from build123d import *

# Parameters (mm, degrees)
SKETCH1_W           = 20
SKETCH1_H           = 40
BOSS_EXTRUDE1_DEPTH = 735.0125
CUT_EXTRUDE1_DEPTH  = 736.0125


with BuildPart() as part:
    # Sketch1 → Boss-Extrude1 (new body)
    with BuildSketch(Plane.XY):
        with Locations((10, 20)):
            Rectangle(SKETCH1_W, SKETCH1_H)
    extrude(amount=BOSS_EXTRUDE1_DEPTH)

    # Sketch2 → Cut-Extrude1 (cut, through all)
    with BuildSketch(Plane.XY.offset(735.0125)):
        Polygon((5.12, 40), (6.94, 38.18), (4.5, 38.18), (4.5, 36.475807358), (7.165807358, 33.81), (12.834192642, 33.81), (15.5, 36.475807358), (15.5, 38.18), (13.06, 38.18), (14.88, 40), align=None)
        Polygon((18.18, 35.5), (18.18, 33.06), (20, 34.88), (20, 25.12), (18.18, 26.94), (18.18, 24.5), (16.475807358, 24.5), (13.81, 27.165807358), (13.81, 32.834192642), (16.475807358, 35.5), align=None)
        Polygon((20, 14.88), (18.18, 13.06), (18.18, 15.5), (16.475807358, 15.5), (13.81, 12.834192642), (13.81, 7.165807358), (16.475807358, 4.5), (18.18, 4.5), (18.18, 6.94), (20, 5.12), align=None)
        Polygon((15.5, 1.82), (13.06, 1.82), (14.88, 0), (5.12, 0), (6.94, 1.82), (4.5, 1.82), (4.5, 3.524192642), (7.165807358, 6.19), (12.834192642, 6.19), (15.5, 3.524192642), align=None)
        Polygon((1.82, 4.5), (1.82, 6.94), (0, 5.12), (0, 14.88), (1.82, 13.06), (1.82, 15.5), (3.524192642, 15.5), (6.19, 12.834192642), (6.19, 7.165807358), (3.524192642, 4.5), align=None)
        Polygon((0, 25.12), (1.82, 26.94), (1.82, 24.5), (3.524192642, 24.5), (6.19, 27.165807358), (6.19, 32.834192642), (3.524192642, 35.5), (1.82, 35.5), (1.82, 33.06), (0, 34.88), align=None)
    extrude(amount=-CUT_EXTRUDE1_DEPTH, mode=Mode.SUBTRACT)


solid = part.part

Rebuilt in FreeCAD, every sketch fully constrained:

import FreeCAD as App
import Part
import Sketcher

V = App.Vector

doc = App.newDocument("Part")
body = doc.addObject("PartDesign::Body", "Body")

sketch1 = body.newObject("Sketcher::SketchObject", "Sketch")
sketch1.AttachmentSupport = (doc.getObject("XY_Plane"), [""])
sketch1.MapMode = "FlatFace"
sketch1.addGeometry([
    Part.LineSegment(V(0, 40, 0), V(0, 0, 0)),
    Part.LineSegment(V(0, 0, 0), V(20, 0, 0)),
    Part.LineSegment(V(20, 0, 0), V(20, 40, 0)),
    Part.LineSegment(V(20, 40, 0), V(0, 40, 0)),
], False)
sketch1.addConstraint([
    Sketcher.Constraint("Coincident", 0, 2, 1, 1),
    Sketcher.Constraint("Coincident", 1, 2, 2, 1),
    Sketcher.Constraint("Coincident", 2, 2, 3, 1),
    Sketcher.Constraint("Coincident", 3, 2, 0, 1),
    Sketcher.Constraint("Vertical", 0),
    Sketcher.Constraint("Horizontal", 1),
    Sketcher.Constraint("Vertical", 2),
    Sketcher.Constraint("Horizontal", 3),
    Sketcher.Constraint("Coincident", 0, 2, -1, 1),
    Sketcher.Constraint("DistanceX", 1, 1, 1, 2, 20.0),
    Sketcher.Constraint("DistanceY", 0, 2, 0, 1, 40.0),
])
pad1 = body.newObject("PartDesign::Pad", "Pad")
pad1.Profile = sketch1
pad1.Length = 735.0125

sketch2 = body.newObject("Sketcher::SketchObject", "Sketch001")
sketch2.AttachmentSupport = (doc.getObject("XY_Plane"), [""])
sketch2.MapMode = "FlatFace"
sketch2.AttachmentOffset = App.Placement(V(0, 0, 735.0125), App.Rotation())
sketch2.addGeometry([
    Part.LineSegment(V(5.1, 40, 0), V(6.9, 38.2, 0)),
    Part.LineSegment(V(6.9, 38.2, 0), V(4.5, 38.2, 0)),
    Part.LineSegment(V(4.5, 38.2, 0), V(4.5, 36.5, 0)),
    Part.LineSegment(V(4.5, 36.5, 0), V(7.2, 33.8, 0)),
    Part.LineSegment(V(7.2, 33.8, 0), V(12.8, 33.8, 0)),
    Part.LineSegment(V(12.8, 33.8, 0), V(15.5, 36.5, 0)),
    Part.LineSegment(V(15.5, 36.5, 0), V(15.5, 38.2, 0)),
    Part.LineSegment(V(15.5, 38.2, 0), V(13.1, 38.2, 0)),
    Part.LineSegment(V(13.1, 38.2, 0), V(14.9, 40, 0)),
    Part.LineSegment(V(14.9, 40, 0), V(5.1, 40, 0)),
    Part.LineSegment(V(18.2, 33.1, 0), V(18.2, 35.5, 0)),
    Part.LineSegment(V(18.2, 35.5, 0), V(16.5, 35.5, 0)),
    Part.LineSegment(V(16.5, 35.5, 0), V(13.8, 32.8, 0)),
    Part.LineSegment(V(13.8, 32.8, 0), V(13.8, 27.2, 0)),
    Part.LineSegment(V(13.8, 27.2, 0), V(16.5, 24.5, 0)),
    Part.LineSegment(V(16.5, 24.5, 0), V(18.2, 24.5, 0)),
    Part.LineSegment(V(18.2, 24.5, 0), V(18.2, 26.9, 0)),
    Part.LineSegment(V(18.2, 26.9, 0), V(20, 25.1, 0)),
    Part.LineSegment(V(20, 25.1, 0), V(20, 34.9, 0)),
    Part.LineSegment(V(20, 34.9, 0), V(18.2, 33.1, 0)),
    Part.LineSegment(V(20, 14.9, 0), V(18.2, 13.1, 0)),
    Part.LineSegment(V(18.2, 13.1, 0), V(18.2, 15.5, 0)),
    Part.LineSegment(V(18.2, 15.5, 0), V(16.5, 15.5, 0)),
    Part.LineSegment(V(16.5, 15.5, 0), V(13.8, 12.8, 0)),
    Part.LineSegment(V(13.8, 12.8, 0), V(13.8, 7.2, 0)),
    Part.LineSegment(V(13.8, 7.2, 0), V(16.5, 4.5, 0)),
    Part.LineSegment(V(16.5, 4.5, 0), V(18.2, 4.5, 0)),
    Part.LineSegment(V(18.2, 4.5, 0), V(18.2, 6.9, 0)),
    Part.LineSegment(V(18.2, 6.9, 0), V(20, 5.1, 0)),
    Part.LineSegment(V(20, 5.1, 0), V(20, 14.9, 0)),
    Part.LineSegment(V(13.1, 1.8, 0), V(15.5, 1.8, 0)),
    Part.LineSegment(V(15.5, 1.8, 0), V(15.5, 3.5, 0)),
    Part.LineSegment(V(15.5, 3.5, 0), V(12.8, 6.2, 0)),
    Part.LineSegment(V(12.8, 6.2, 0), V(7.2, 6.2, 0)),
    Part.LineSegment(V(7.2, 6.2, 0), V(4.5, 3.5, 0)),
    Part.LineSegment(V(4.5, 3.5, 0), V(4.5, 1.8, 0)),
    Part.LineSegment(V(4.5, 1.8, 0), V(6.9, 1.8, 0)),
    Part.LineSegment(V(6.9, 1.8, 0), V(5.1, 0, 0)),
    Part.LineSegment(V(5.1, 0, 0), V(14.9, 0, 0)),
    Part.LineSegment(V(14.9, 0, 0), V(13.1, 1.8, 0)),
    Part.LineSegment(V(1.8, 6.9, 0), V(1.8, 4.5, 0)),
    Part.LineSegment(V(1.8, 4.5, 0), V(3.5, 4.5, 0)),
    Part.LineSegment(V(3.5, 4.5, 0), V(6.2, 7.2, 0)),
    Part.LineSegment(V(6.2, 7.2, 0), V(6.2, 12.8, 0)),
    Part.LineSegment(V(6.2, 12.8, 0), V(3.5, 15.5, 0)),
    Part.LineSegment(V(3.5, 15.5, 0), V(1.8, 15.5, 0)),
    Part.LineSegment(V(1.8, 15.5, 0), V(1.8, 13.1, 0)),
    Part.LineSegment(V(1.8, 13.1, 0), V(0, 14.9, 0)),
    Part.LineSegment(V(0, 14.9, 0), V(0, 5.1, 0)),
    Part.LineSegment(V(0, 5.1, 0), V(1.8, 6.9, 0)),
    Part.LineSegment(V(0, 25.1, 0), V(1.8, 26.9, 0)),
    Part.LineSegment(V(1.8, 26.9, 0), V(1.8, 24.5, 0)),
    Part.LineSegment(V(1.8, 24.5, 0), V(3.5, 24.5, 0)),
    Part.LineSegment(V(3.5, 24.5, 0), V(6.2, 27.2, 0)),
    Part.LineSegment(V(6.2, 27.2, 0), V(6.2, 32.8, 0)),
    Part.LineSegment(V(6.2, 32.8, 0), V(3.5, 35.5, 0)),
    Part.LineSegment(V(3.5, 35.5, 0), V(1.8, 35.5, 0)),
    Part.LineSegment(V(1.8, 35.5, 0), V(1.8, 33.1, 0)),
    Part.LineSegment(V(1.8, 33.1, 0), V(0, 34.9, 0)),
    Part.LineSegment(V(0, 34.9, 0), V(0, 25.1, 0)),
], False)
sketch2.addConstraint([
    Sketcher.Constraint("Coincident", 0, 2, 1, 1),
    Sketcher.Constraint("Coincident", 1, 2, 2, 1),
    Sketcher.Constraint("Coincident", 2, 2, 3, 1),
    Sketcher.Constraint("Coincident", 3, 2, 4, 1),
    Sketcher.Constraint("Coincident", 4, 2, 5, 1),
    Sketcher.Constraint("Coincident", 5, 2, 6, 1),
    Sketcher.Constraint("Coincident", 6, 2, 7, 1),
    Sketcher.Constraint("Coincident", 7, 2, 8, 1),
    Sketcher.Constraint("Coincident", 8, 2, 9, 1),
    Sketcher.Constraint("Coincident", 9, 2, 0, 1),
    Sketcher.Constraint("Coincident", 10, 2, 11, 1),
    Sketcher.Constraint("Coincident", 11, 2, 12, 1),
    Sketcher.Constraint("Coincident", 12, 2, 13, 1),
    Sketcher.Constraint("Coincident", 13, 2, 14, 1),
    Sketcher.Constraint("Coincident", 14, 2, 15, 1),
    Sketcher.Constraint("Coincident", 15, 2, 16, 1),
    Sketcher.Constraint("Coincident", 16, 2, 17, 1),
    Sketcher.Constraint("Coincident", 17, 2, 18, 1),
    Sketcher.Constraint("Coincident", 18, 2, 19, 1),
    Sketcher.Constraint("Coincident", 19, 2, 10, 1),
    Sketcher.Constraint("Coincident", 20, 2, 21, 1),
    Sketcher.Constraint("Coincident", 21, 2, 22, 1),
    Sketcher.Constraint("Coincident", 22, 2, 23, 1),
    Sketcher.Constraint("Coincident", 23, 2, 24, 1),
    Sketcher.Constraint("Coincident", 24, 2, 25, 1),
    Sketcher.Constraint("Coincident", 25, 2, 26, 1),
    Sketcher.Constraint("Coincident", 26, 2, 27, 1),
    Sketcher.Constraint("Coincident", 27, 2, 28, 1),
    Sketcher.Constraint("Coincident", 28, 2, 29, 1),
    Sketcher.Constraint("Coincident", 29, 2, 20, 1),
    Sketcher.Constraint("Coincident", 30, 2, 31, 1),
    Sketcher.Constraint("Coincident", 31, 2, 32, 1),
    Sketcher.Constraint("Coincident", 32, 2, 33, 1),
    Sketcher.Constraint("Coincident", 33, 2, 34, 1),
    Sketcher.Constraint("Coincident", 34, 2, 35, 1),
    Sketcher.Constraint("Coincident", 35, 2, 36, 1),
    Sketcher.Constraint("Coincident", 36, 2, 37, 1),
    Sketcher.Constraint("Coincident", 37, 2, 38, 1),
    Sketcher.Constraint("Coincident", 38, 2, 39, 1),
    Sketcher.Constraint("Coincident", 39, 2, 30, 1),
    Sketcher.Constraint("Coincident", 40, 2, 41, 1),
    Sketcher.Constraint("Coincident", 41, 2, 42, 1),
    Sketcher.Constraint("Coincident", 42, 2, 43, 1),
    Sketcher.Constraint("Coincident", 43, 2, 44, 1),
    Sketcher.Constraint("Coincident", 44, 2, 45, 1),
    Sketcher.Constraint("Coincident", 45, 2, 46, 1),
    Sketcher.Constraint("Coincident", 46, 2, 47, 1),
    Sketcher.Constraint("Coincident", 47, 2, 48, 1),
    Sketcher.Constraint("Coincident", 48, 2, 49, 1),
    Sketcher.Constraint("Coincident", 49, 2, 40, 1),
    Sketcher.Constraint("Coincident", 50, 2, 51, 1),
    Sketcher.Constraint("Coincident", 51, 2, 52, 1),
    Sketcher.Constraint("Coincident", 52, 2, 53, 1),
    Sketcher.Constraint("Coincident", 53, 2, 54, 1),
    Sketcher.Constraint("Coincident", 54, 2, 55, 1),
    Sketcher.Constraint("Coincident", 55, 2, 56, 1),
    Sketcher.Constraint("Coincident", 56, 2, 57, 1),
    Sketcher.Constraint("Coincident", 57, 2, 58, 1),
    Sketcher.Constraint("Coincident", 58, 2, 59, 1),
    Sketcher.Constraint("Coincident", 59, 2, 50, 1),
    Sketcher.Constraint("Horizontal", 1),
    Sketcher.Constraint("Vertical", 2),
    Sketcher.Constraint("Horizontal", 4),
    Sketcher.Constraint("Vertical", 6),
    Sketcher.Constraint("Horizontal", 7),
    Sketcher.Constraint("Horizontal", 9),
    Sketcher.Constraint("Vertical", 10),
    Sketcher.Constraint("Horizontal", 11),
    Sketcher.Constraint("Vertical", 13),
    Sketcher.Constraint("Horizontal", 15),
    Sketcher.Constraint("Vertical", 16),
    Sketcher.Constraint("Vertical", 18),
    Sketcher.Constraint("Vertical", 21),
    Sketcher.Constraint("Horizontal", 22),
    Sketcher.Constraint("Vertical", 24),
    Sketcher.Constraint("Horizontal", 26),
    Sketcher.Constraint("Vertical", 27),
    Sketcher.Constraint("Vertical", 29),
    Sketcher.Constraint("Horizontal", 30),
    Sketcher.Constraint("Vertical", 31),
    Sketcher.Constraint("Horizontal", 33),
    Sketcher.Constraint("Vertical", 35),
    Sketcher.Constraint("Horizontal", 36),
    Sketcher.Constraint("Horizontal", 38),
    Sketcher.Constraint("Vertical", 40),
    Sketcher.Constraint("Horizontal", 41),
    Sketcher.Constraint("Vertical", 43),
    Sketcher.Constraint("Horizontal", 45),
    Sketcher.Constraint("Vertical", 46),
    Sketcher.Constraint("Vertical", 48),
    Sketcher.Constraint("Vertical", 51),
    Sketcher.Constraint("Horizontal", 52),
    Sketcher.Constraint("Vertical", 54),
    Sketcher.Constraint("Horizontal", 56),
    Sketcher.Constraint("Vertical", 57),
    Sketcher.Constraint("Vertical", 59),
    Sketcher.Constraint("PointOnObject", 37, 2, -1),
    Sketcher.Constraint("PointOnObject", 47, 2, -2),
    Sketcher.Constraint("PointOnObject", 58, 2, -2),
    Sketcher.Constraint("Parallel", 0, 3),
    Sketcher.Constraint("Perpendicular", 3, 5),
    Sketcher.Constraint("Parallel", 5, 8),
    Sketcher.Constraint("Parallel", 8, 12),
    Sketcher.Constraint("Perpendicular", 12, 14),
    Sketcher.Constraint("Parallel", 14, 17),
    Sketcher.Constraint("Perpendicular", 17, 19),
    Sketcher.Constraint("Parallel", 19, 20),
    Sketcher.Constraint("Parallel", 20, 23),
    Sketcher.Constraint("Perpendicular", 23, 25),
    Sketcher.Constraint("Parallel", 25, 28),
    Sketcher.Constraint("Parallel", 28, 32),
    Sketcher.Constraint("Perpendicular", 32, 34),
    Sketcher.Constraint("Parallel", 34, 37),
    Sketcher.Constraint("Perpendicular", 37, 39),
    Sketcher.Constraint("Perpendicular", 39, 42),
    Sketcher.Constraint("Perpendicular", 42, 44),
    Sketcher.Constraint("Parallel", 44, 47),
    Sketcher.Constraint("Perpendicular", 47, 49),
    Sketcher.Constraint("Parallel", 49, 50),
    Sketcher.Constraint("Parallel", 50, 53),
    Sketcher.Constraint("Perpendicular", 53, 55),
    Sketcher.Constraint("Parallel", 55, 58),
    Sketcher.Constraint("Horizontal", 2, 2, 5, 2),
    Sketcher.Constraint("Horizontal", 1, 2, 6, 2),
    Sketcher.Constraint("Horizontal", 31, 2, 34, 2),
    Sketcher.Constraint("Horizontal", 30, 2, 35, 2),
    Sketcher.Constraint("Horizontal", 26, 2, 40, 2),
    Sketcher.Constraint("Horizontal", 24, 2, 42, 2),
    Sketcher.Constraint("Horizontal", 23, 2, 43, 2),
    Sketcher.Constraint("Horizontal", 22, 2, 44, 2),
    Sketcher.Constraint("Horizontal", 20, 2, 46, 2),
    Sketcher.Constraint("Horizontal", 29, 2, 47, 2),
    Sketcher.Constraint("Horizontal", 28, 2, 48, 2),
    Sketcher.Constraint("Horizontal", 27, 2, 49, 2),
    Sketcher.Constraint("Horizontal", 16, 2, 50, 2),
    Sketcher.Constraint("Horizontal", 15, 2, 51, 2),
    Sketcher.Constraint("Horizontal", 13, 2, 53, 2),
    Sketcher.Constraint("Horizontal", 12, 2, 54, 2),
    Sketcher.Constraint("Horizontal", 11, 2, 55, 2),
    Sketcher.Constraint("Horizontal", 19, 2, 57, 2),
    Sketcher.Constraint("Horizontal", 18, 2, 58, 2),
    Sketcher.Constraint("Horizontal", 17, 2, 59, 2),
    Sketcher.Constraint("Vertical", 11, 2, 14, 2),
    Sketcher.Constraint("Vertical", 10, 2, 15, 2),
    Sketcher.Constraint("Vertical", 19, 2, 20, 2),
    Sketcher.Constraint("Vertical", 14, 2, 22, 2),
    Sketcher.Constraint("Vertical", 13, 2, 23, 2),
    Sketcher.Constraint("Vertical", 22, 2, 25, 2),
    Sketcher.Constraint("Vertical", 21, 2, 26, 2),
    Sketcher.Constraint("Vertical", 18, 2, 28, 2),
    Sketcher.Constraint("Vertical", 6, 2, 30, 2),
    Sketcher.Constraint("Vertical", 4, 2, 32, 2),
    Sketcher.Constraint("Vertical", 3, 2, 33, 2),
    Sketcher.Constraint("Vertical", 2, 2, 34, 2),
    Sketcher.Constraint("Vertical", 0, 2, 36, 2),
    Sketcher.Constraint("Vertical", 9, 2, 37, 2),
    Sketcher.Constraint("Vertical", 8, 2, 38, 2),
    Sketcher.Constraint("Vertical", 44, 2, 52, 2),
    Sketcher.Constraint("Equal", 1, 7),
    Sketcher.Constraint("Equal", 26, 41),
    Sketcher.Constraint("Equal", 56, 2),
    Sketcher.Constraint("Equal", 36, 10),
    Sketcher.Constraint("Equal", 33, 13),
    Sketcher.Constraint("Equal", 10, 16),
    Sketcher.Constraint("Equal", 38, 18),
    Sketcher.Constraint("Equal", 16, 21),
    Sketcher.Constraint("Equal", 13, 24),
    Sketcher.Constraint("Equal", 21, 27),
    Sketcher.Constraint("Equal", 6, 31),
    Sketcher.Constraint("Equal", 5, 12),
    Sketcher.Constraint("DistanceY", -1, 1, 8, 2, 40.0),
    Sketcher.Constraint("DistanceX", -1, 1, 17, 2, 20.0),
    Sketcher.Constraint("DistanceX", 2, 2, 5, 2, 11.0),
    Sketcher.Constraint("DistanceY", 21, 2, 15, 2, 9.0),
    Sketcher.Constraint("DistanceX", 1, 2, 1, 1, 2.44),
    Sketcher.Constraint("DistanceX", 9, 2, 9, 1, 9.76),
    Sketcher.Constraint("DistanceX", -1, 1, 1, 2, 4.5),
    Sketcher.Constraint("DistanceY", -1, 1, 10, 2, 35.5),
    Sketcher.Constraint("DistanceY", -1, 1, 3, 2, 33.81),
    Sketcher.Constraint("Distance", 3, 3.770021),
])
pocket1 = body.newObject("PartDesign::Pocket", "Pocket")
pocket1.Profile = sketch2
pocket1.Type = "ThroughAll"

doc.recompute()
